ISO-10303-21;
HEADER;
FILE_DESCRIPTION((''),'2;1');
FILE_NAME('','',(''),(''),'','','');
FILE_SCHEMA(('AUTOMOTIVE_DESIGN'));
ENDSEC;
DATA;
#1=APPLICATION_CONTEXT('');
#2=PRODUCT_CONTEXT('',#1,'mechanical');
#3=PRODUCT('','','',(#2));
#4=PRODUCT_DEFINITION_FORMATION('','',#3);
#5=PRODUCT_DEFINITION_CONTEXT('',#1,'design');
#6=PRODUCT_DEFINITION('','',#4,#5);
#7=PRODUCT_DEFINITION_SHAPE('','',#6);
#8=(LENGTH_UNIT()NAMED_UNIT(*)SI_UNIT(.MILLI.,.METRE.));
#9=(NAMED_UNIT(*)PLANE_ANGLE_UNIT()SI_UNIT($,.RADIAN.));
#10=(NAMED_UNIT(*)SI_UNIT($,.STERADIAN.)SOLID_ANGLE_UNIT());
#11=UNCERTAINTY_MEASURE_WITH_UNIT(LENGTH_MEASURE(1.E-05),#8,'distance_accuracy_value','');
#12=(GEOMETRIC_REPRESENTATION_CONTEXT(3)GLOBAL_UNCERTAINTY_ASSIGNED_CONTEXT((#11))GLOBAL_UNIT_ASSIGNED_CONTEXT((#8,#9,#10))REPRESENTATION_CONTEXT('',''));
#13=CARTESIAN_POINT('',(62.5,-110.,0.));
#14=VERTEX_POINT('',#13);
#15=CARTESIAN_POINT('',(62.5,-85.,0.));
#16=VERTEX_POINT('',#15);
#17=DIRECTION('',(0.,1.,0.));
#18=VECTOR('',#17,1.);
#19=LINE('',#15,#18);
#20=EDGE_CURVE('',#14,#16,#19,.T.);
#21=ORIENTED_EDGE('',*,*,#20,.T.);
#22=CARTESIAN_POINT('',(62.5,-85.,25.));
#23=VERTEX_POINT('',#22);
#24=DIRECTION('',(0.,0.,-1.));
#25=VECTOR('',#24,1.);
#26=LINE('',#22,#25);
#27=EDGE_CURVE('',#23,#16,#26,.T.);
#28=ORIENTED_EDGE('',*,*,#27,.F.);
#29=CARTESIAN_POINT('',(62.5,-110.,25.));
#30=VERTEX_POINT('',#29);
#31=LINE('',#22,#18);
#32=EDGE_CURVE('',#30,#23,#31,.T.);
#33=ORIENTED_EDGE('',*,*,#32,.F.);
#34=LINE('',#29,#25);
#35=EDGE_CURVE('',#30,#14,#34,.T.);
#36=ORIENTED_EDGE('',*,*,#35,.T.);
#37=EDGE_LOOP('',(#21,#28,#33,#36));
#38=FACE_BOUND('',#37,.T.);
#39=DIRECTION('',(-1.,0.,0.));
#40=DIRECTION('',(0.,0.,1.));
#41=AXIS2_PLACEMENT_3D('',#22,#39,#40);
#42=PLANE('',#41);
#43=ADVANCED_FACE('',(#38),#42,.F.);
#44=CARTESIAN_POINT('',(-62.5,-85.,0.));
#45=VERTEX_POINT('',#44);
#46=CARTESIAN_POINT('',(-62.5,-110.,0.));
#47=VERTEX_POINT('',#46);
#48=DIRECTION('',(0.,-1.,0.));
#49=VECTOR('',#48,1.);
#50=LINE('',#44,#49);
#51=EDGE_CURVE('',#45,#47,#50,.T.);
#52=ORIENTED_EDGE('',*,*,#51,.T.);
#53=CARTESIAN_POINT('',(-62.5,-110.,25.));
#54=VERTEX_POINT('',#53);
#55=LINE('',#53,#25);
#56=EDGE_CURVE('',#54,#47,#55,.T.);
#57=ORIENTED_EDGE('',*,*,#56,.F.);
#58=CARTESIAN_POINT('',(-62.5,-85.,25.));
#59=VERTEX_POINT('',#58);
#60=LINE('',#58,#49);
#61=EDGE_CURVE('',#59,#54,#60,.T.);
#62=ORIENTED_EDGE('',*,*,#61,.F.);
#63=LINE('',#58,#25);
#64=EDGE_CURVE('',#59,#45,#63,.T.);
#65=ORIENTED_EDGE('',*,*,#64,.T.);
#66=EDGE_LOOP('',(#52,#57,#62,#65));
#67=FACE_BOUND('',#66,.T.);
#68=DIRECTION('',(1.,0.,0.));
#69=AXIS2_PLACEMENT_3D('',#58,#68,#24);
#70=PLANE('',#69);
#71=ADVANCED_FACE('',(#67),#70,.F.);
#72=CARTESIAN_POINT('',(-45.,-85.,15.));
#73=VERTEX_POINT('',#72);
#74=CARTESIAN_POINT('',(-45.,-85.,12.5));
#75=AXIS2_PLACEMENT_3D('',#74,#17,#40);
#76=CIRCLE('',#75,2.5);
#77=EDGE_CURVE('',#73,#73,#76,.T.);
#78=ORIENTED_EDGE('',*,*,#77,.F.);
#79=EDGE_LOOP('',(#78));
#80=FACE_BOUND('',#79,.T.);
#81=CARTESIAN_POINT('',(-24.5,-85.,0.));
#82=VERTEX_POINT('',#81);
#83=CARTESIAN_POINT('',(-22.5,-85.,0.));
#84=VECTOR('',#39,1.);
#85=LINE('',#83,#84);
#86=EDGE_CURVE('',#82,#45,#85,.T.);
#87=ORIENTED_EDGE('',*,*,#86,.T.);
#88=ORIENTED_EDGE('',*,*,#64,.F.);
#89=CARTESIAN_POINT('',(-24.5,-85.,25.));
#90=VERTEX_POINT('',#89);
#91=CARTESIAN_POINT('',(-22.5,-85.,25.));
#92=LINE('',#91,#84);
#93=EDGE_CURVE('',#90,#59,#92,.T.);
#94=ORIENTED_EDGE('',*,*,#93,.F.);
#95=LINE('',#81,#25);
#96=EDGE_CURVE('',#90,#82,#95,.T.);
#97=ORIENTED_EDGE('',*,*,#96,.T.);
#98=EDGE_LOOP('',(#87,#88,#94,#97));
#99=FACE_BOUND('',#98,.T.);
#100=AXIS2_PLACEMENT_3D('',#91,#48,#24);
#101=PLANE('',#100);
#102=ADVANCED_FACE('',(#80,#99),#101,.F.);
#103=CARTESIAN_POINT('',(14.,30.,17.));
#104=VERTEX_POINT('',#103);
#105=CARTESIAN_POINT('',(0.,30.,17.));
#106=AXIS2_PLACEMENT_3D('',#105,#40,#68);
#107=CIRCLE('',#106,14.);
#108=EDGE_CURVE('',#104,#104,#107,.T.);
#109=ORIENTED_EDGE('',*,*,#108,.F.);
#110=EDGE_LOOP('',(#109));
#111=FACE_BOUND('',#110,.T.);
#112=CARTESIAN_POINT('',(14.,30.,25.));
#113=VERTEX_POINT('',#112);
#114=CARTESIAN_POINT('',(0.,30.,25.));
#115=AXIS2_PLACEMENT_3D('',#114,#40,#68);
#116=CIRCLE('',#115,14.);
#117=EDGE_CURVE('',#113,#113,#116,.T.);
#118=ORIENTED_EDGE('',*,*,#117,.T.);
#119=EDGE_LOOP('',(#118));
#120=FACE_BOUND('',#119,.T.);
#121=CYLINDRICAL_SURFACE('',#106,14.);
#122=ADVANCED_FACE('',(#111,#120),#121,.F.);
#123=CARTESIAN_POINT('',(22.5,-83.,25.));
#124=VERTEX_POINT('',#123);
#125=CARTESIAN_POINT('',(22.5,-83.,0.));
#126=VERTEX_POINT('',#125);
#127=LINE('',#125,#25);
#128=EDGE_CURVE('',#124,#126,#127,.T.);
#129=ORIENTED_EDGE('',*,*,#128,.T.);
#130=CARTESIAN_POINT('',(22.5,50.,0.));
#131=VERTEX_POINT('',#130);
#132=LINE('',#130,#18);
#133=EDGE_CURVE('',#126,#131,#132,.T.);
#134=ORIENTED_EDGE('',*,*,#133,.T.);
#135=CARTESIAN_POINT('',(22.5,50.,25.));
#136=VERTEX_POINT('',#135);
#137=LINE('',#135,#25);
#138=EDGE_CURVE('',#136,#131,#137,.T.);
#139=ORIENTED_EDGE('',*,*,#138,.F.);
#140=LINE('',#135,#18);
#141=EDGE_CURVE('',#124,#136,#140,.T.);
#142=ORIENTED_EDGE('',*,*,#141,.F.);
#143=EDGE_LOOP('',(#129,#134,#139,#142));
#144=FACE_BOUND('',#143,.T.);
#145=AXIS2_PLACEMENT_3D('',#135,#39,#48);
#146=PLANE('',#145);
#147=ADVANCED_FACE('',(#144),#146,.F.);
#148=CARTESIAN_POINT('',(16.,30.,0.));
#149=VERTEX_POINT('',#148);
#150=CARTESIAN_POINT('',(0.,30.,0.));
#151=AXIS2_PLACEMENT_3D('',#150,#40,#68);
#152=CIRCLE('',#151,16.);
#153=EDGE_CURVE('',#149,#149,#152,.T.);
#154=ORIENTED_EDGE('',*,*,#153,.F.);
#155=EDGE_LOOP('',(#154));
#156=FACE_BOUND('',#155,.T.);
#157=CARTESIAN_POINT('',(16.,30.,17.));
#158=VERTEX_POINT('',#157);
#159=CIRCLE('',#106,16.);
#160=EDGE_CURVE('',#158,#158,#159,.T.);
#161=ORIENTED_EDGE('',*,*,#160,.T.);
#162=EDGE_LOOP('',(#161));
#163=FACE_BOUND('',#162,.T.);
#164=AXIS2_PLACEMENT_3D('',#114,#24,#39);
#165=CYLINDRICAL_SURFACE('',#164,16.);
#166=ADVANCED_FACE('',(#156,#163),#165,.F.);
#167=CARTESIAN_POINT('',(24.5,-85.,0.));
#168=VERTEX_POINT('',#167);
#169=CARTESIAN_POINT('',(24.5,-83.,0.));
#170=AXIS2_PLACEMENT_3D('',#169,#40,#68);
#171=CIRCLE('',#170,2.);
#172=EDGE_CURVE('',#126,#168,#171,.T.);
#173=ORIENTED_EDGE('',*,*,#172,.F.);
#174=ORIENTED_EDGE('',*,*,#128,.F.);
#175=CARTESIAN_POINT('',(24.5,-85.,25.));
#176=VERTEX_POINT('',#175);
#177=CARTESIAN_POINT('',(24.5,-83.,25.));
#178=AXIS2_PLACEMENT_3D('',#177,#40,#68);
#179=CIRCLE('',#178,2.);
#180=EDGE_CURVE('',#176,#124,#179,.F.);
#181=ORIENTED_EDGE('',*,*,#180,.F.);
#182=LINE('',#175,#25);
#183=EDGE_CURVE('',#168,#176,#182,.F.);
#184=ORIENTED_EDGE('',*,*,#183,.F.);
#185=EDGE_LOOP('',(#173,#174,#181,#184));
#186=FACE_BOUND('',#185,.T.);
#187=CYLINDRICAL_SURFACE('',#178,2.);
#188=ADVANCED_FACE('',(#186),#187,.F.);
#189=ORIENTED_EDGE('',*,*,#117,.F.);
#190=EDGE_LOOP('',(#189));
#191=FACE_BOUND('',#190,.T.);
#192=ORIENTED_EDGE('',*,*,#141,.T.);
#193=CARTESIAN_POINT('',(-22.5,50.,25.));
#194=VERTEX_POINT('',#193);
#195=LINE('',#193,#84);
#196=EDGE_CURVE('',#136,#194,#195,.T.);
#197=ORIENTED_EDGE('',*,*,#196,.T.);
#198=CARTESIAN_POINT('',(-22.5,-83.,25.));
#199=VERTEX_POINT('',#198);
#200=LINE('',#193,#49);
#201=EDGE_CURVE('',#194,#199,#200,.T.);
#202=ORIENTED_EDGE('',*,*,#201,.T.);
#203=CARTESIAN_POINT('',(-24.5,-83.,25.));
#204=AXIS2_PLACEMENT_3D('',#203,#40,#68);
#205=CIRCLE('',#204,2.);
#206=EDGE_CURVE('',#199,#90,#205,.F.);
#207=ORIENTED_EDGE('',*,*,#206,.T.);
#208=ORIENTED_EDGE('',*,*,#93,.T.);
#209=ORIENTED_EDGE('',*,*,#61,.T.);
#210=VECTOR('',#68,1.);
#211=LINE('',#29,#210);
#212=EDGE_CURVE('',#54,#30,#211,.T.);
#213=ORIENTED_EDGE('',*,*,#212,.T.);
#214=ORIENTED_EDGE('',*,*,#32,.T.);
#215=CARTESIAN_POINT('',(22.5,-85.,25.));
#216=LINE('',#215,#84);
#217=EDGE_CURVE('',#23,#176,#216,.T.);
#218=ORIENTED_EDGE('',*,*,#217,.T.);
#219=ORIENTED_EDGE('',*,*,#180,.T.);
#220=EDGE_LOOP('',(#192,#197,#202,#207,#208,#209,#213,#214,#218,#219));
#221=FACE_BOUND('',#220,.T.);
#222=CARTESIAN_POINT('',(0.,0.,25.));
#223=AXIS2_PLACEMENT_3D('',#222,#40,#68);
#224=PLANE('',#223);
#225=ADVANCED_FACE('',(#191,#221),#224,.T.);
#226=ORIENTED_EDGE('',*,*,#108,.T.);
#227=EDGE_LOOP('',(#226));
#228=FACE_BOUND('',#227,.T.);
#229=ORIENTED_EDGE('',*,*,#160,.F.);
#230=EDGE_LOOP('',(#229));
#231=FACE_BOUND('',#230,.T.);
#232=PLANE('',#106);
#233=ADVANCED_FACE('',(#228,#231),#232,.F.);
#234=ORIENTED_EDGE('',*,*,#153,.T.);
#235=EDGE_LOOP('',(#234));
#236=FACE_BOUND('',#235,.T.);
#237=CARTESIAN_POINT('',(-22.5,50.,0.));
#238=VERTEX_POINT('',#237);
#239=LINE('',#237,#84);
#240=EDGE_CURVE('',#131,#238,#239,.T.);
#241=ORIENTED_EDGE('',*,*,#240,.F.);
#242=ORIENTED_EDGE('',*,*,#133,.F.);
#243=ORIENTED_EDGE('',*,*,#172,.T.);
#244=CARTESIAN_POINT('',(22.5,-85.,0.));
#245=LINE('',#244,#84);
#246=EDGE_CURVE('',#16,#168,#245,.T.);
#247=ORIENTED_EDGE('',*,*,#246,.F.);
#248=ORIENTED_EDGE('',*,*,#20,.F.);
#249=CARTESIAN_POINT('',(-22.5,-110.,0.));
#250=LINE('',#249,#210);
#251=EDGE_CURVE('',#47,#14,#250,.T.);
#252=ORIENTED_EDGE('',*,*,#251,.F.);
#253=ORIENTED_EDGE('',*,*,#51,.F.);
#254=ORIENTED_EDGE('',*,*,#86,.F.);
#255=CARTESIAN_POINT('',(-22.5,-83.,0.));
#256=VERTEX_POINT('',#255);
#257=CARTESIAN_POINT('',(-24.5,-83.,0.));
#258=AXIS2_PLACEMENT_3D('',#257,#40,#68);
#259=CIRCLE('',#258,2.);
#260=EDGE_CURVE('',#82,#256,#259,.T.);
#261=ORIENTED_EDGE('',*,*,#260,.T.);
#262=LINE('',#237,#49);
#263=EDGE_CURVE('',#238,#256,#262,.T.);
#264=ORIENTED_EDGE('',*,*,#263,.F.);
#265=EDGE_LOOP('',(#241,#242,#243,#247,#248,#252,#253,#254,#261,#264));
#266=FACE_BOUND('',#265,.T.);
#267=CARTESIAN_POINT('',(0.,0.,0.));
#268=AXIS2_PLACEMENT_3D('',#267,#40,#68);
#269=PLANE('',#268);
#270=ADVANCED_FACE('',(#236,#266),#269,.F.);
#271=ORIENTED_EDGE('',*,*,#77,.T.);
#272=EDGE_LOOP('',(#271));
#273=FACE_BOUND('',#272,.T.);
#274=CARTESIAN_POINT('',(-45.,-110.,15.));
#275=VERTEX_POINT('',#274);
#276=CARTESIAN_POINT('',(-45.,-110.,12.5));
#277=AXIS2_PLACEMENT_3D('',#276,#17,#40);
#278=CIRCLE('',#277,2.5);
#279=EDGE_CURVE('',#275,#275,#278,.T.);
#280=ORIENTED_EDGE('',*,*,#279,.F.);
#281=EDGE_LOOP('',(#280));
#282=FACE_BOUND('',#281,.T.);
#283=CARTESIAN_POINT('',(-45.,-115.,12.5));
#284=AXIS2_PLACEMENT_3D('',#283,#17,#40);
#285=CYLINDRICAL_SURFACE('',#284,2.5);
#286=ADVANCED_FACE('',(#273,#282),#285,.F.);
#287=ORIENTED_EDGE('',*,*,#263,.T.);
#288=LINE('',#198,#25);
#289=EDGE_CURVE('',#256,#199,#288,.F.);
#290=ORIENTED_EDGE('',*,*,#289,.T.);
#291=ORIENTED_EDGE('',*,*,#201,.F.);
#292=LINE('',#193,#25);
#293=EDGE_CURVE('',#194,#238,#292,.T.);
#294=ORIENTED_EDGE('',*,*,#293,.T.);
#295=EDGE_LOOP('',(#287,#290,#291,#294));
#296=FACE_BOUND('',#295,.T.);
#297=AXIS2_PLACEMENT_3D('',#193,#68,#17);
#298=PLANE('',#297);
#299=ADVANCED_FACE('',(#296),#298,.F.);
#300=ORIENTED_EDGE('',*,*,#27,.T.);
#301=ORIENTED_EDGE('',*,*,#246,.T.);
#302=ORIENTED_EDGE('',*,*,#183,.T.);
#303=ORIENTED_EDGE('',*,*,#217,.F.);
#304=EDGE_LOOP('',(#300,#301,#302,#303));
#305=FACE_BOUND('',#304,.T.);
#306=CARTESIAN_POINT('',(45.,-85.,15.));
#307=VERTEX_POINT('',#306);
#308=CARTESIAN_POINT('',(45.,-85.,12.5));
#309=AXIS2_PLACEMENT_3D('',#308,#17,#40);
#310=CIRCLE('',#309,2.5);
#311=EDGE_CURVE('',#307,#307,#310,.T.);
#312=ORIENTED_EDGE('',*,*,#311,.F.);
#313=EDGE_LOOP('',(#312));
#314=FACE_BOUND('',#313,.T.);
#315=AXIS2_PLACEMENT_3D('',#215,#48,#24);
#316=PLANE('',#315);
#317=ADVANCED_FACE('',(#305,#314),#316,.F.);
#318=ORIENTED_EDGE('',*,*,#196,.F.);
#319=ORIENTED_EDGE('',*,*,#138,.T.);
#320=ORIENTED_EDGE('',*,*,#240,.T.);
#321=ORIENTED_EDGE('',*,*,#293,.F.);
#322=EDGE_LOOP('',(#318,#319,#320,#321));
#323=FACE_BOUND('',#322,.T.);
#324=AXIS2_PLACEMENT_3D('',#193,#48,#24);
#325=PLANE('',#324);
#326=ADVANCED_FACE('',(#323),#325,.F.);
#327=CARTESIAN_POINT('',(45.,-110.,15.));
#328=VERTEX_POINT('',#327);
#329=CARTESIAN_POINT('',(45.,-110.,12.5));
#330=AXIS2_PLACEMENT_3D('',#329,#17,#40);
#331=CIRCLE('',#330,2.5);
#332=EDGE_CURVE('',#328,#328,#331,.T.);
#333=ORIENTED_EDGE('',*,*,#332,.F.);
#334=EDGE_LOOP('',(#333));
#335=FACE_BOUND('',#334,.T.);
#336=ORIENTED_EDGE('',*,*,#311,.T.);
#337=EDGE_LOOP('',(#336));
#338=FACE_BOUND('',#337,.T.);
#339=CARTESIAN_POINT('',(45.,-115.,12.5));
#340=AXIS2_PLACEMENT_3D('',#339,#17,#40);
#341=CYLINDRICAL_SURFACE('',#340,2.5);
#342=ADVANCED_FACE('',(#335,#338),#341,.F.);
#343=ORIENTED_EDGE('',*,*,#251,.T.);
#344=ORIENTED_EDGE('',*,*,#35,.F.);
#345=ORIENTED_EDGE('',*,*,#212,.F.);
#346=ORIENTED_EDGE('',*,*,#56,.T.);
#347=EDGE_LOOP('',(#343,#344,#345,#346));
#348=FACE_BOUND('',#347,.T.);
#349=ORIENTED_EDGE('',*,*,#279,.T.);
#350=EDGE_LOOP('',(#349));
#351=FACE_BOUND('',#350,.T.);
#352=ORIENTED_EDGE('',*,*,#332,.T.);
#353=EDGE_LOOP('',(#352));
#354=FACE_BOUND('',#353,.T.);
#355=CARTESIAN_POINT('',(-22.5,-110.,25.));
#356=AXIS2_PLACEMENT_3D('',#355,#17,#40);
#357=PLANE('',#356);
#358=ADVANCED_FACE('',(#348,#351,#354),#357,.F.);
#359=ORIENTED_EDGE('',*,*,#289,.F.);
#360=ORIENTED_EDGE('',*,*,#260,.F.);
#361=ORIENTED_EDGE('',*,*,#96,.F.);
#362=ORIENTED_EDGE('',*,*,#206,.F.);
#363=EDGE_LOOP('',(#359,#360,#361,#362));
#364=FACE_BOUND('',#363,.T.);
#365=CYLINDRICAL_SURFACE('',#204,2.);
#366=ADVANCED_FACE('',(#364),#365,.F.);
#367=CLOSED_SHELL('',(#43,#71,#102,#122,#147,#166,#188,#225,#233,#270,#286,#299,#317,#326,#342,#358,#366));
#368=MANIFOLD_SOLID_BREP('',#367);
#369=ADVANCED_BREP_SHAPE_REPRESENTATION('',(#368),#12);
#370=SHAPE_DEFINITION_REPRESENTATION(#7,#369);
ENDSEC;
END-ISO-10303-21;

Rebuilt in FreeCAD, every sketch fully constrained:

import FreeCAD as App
import Part
import Sketcher

V = App.Vector


def edges_at(feature, points):
    """Names of the edges that pass closest to the given points."""
    edges = feature.Shape.Edges
    near = lambda p: min(range(len(edges)), key=lambda i: edges[i].distToShape(Part.Vertex(*p))[0])
    return sorted({f"Edge{near(p) + 1}" for p in points})


def add_polygon(sketch, points):
    """Adds a closed chain of lines whose ends are joined by coincident constraints."""
    first, n = sketch.GeometryCount, len(points)
    for a, b in zip(points, points[1:] + points[:1]):
        sketch.addGeometry(Part.LineSegment(App.Vector(*a, 0), App.Vector(*b, 0)), False)
    for i in range(n):
        sketch.addConstraint(Sketcher.Constraint("Coincident", first + i, 2, first + (i + 1) % n, 1))

doc = App.newDocument("Part")
body = doc.addObject("PartDesign::Body", "Body")

# Sketch on XY plane
sketch1 = body.newObject("Sketcher::SketchObject", "Sketch")
sketch1.AttachmentSupport = (doc.getObject("XY_Plane"), [""])
sketch1.MapMode = "FlatFace"
add_polygon(sketch1, [(22, 50), (-22, 50), (-22, -85), (-62, -85), (-62, -110), (62, -110), (62, -85), (22, -85)])  # lines 0-7
sketch1.addGeometry(Part.Circle(V(0, 30, 0), V(0, 0, 1), 16), False)  # 8
sketch1.addConstraint([
    Sketcher.Constraint("Horizontal", 0),
    Sketcher.Constraint("Vertical", 1),
    Sketcher.Constraint("Horizontal", 2),
    Sketcher.Constraint("Vertical", 3),
    Sketcher.Constraint("Horizontal", 4),
    Sketcher.Constraint("Vertical", 5),
    Sketcher.Constraint("Horizontal", 6),
    Sketcher.Constraint("Vertical", 7),
    Sketcher.Constraint("Symmetric", 2, 2, 5, 2, -2),
    Sketcher.Constraint("PointOnObject", 8, 3, -2),
    Sketcher.Constraint("Equal", 2, 6),
    Sketcher.Constraint("Diameter", 8, 32.0),
    Sketcher.Constraint("DistanceX", 0, 2, 0, 1, 45.0),
    Sketcher.Constraint("DistanceX", 2, 2, 2, 1, 40.0),
    Sketcher.Constraint("DistanceY", 1, 2, 1, 1, 135.0),
    Sketcher.Constraint("DistanceY", 3, 2, 3, 1, 25.0),
    Sketcher.Constraint("DistanceY", -1, 1, 8, 3, 30.0),
    Sketcher.Constraint("DistanceY", -1, 1, 0, 2, 50.0),
])
pad1 = body.newObject("PartDesign::Pad", "Pad")
pad1.Profile = sketch1
pad1.Length = 25
doc.recompute()

fillet = body.newObject("PartDesign::Fillet", "Fillet")
fillet.Base = (pad1, edges_at(pad1, [(-22.5, -85, 12.5), (22.5, -85, 12.5)]))
fillet.Radius = 2

# Sketch on XZ plane
sketch2 = body.newObject("Sketcher::SketchObject", "Sketch001")
sketch2.AttachmentSupport = (doc.getObject("XZ_Plane"), [""])
sketch2.MapMode = "FlatFace"
sketch2.AttachmentOffset = App.Placement(V(0, 0, 85), App.Rotation())
sketch2.addGeometry([
    Part.Circle(V(-45, 12.5, 0), V(0, 0, 1), 2.5),
    Part.Circle(V(45, 12.5, 0), V(0, 0, 1), 2.5),
], False)
sketch2.addConstraint([
    Sketcher.Constraint("Equal", 0, 1),
    Sketcher.Constraint("Symmetric", 0, 3, 1, 3, -2),
    Sketcher.Constraint("Diameter", 0, 5.0),
    Sketcher.Constraint("DistanceX", 0, 3, -1, 1, 45.0),
    Sketcher.Constraint("DistanceY", -1, 1, 0, 3, 12.5),
])
pocket1 = body.newObject("PartDesign::Pocket", "Pocket")
pocket1.Profile = sketch2
pocket1.Length = 30
pocket1.Reversed = True

# Sketch on XY plane
sketch3 = body.newObject("Sketcher::SketchObject", "Sketch002")
sketch3.AttachmentSupport = (doc.getObject("XY_Plane"), [""])
sketch3.MapMode = "FlatFace"
sketch3.AttachmentOffset = App.Placement(V(0, 0, 17), App.Rotation())
sketch3.addGeometry([
    Part.Circle(V(0, 30, 0), V(0, 0, 1), 16),
    Part.Circle(V(0, 30, 0), V(0, 0, 1), 14),
], False)
sketch3.addConstraint([
    Sketcher.Constraint("Coincident", 1, 3, 0, 3),
    Sketcher.Constraint("PointOnObject", 0, 3, -2),
    Sketcher.Constraint("Diameter", 0, 32.0),
    Sketcher.Constraint("Diameter", 1, 28.0),
    Sketcher.Constraint("DistanceY", -1, 1, 0, 3, 30.0),
])
pad2 = body.newObject("PartDesign::Pad", "Pad001")
pad2.Profile = sketch3
pad2.Length = 8

doc.recompute()
